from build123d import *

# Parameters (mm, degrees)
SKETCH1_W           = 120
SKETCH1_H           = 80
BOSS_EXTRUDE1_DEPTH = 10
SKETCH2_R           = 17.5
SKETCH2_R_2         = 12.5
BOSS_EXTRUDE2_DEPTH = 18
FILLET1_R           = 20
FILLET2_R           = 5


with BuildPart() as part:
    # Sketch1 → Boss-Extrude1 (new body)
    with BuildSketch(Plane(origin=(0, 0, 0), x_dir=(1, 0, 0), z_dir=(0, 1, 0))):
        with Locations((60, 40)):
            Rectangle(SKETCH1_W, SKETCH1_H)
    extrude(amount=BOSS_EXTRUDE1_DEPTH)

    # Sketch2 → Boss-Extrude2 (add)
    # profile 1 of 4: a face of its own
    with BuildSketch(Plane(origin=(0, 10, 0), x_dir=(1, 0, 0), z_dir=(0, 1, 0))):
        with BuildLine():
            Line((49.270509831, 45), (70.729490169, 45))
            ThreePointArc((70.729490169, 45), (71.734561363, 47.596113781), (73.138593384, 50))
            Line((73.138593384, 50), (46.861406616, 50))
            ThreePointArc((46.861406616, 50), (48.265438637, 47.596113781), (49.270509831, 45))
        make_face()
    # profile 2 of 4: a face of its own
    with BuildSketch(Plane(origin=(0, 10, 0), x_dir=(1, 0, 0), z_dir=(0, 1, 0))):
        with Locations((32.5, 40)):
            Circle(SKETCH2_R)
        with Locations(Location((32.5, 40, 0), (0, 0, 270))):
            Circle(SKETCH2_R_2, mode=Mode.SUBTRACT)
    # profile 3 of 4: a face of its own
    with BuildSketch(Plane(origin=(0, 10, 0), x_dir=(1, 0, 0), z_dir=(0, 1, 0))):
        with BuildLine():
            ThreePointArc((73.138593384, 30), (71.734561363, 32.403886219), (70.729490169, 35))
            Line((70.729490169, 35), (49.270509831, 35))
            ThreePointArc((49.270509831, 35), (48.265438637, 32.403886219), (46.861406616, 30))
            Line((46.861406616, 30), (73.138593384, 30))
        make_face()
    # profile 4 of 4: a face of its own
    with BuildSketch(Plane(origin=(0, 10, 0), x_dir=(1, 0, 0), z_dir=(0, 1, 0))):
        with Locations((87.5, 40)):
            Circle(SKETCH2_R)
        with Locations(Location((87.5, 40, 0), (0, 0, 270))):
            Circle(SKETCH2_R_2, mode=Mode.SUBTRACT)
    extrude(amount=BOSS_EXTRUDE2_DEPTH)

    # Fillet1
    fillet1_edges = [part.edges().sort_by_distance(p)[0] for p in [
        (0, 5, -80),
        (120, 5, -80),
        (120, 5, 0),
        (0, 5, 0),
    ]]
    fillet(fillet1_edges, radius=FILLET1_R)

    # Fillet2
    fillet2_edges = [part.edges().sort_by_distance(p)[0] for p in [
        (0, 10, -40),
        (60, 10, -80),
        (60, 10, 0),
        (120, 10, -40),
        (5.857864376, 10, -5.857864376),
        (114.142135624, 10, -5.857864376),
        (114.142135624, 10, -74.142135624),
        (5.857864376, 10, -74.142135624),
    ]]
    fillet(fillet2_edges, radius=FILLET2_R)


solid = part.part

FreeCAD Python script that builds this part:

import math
import FreeCAD as App
import Part
import Sketcher


def edges_at(feature, points):
    """Names of the edges that pass closest to the given points."""
    edges = feature.Shape.Edges
    near = lambda p: min(range(len(edges)), key=lambda i: edges[i].distToShape(Part.Vertex(*p))[0])
    return sorted({f"Edge{near(p) + 1}" for p in points})

doc = App.newDocument("Part")
body = doc.addObject("PartDesign::Body", "Body")

# Sketch on XZ plane
sketch1 = doc.addObject("Sketcher::SketchObject", "Sketch")
body.addObject(sketch1)
sketch1.AttachmentSupport = (doc.XZ_Plane, [""])
sketch1.MapMode = "FlatFace"
sketch1.addGeometry(Part.LineSegment(App.Vector(0, -80, 0), App.Vector(0, 0, 0)), False)
sketch1.addGeometry(Part.LineSegment(App.Vector(0, 0, 0), App.Vector(120, 0, 0)), False)
sketch1.addGeometry(Part.LineSegment(App.Vector(120, 0, 0), App.Vector(120, -80, 0)), False)
sketch1.addGeometry(Part.LineSegment(App.Vector(120, -80, 0), App.Vector(0, -80, 0)), False)
sketch1.addConstraint(Sketcher.Constraint("Coincident", 0, 2, 1, 1))
sketch1.addConstraint(Sketcher.Constraint("Coincident", 1, 2, 2, 1))
sketch1.addConstraint(Sketcher.Constraint("Coincident", 2, 2, 3, 1))
sketch1.addConstraint(Sketcher.Constraint("Coincident", 3, 2, 0, 1))
sketch1.addConstraint(Sketcher.Constraint("Vertical", 0))
sketch1.addConstraint(Sketcher.Constraint("Horizontal", 1))
sketch1.addConstraint(Sketcher.Constraint("Vertical", 2))
sketch1.addConstraint(Sketcher.Constraint("Horizontal", 3))
sketch1.addConstraint(Sketcher.Constraint("Coincident", 0, 2, -1, 1))
sketch1.addConstraint(Sketcher.Constraint("DistanceX", 1, 1, 1, 2, 120.0))
sketch1.addConstraint(Sketcher.Constraint("DistanceY", 0, 1, 0, 2, 80.0))
pad1 = doc.addObject("PartDesign::Pad", "Pad")
body.addObject(pad1)
pad1.Profile = sketch1
pad1.Length = 10
pad1.Reversed = True

# Sketch on XZ plane
sketch2 = doc.addObject("Sketcher::SketchObject", "Sketch001")
body.addObject(sketch2)
sketch2.AttachmentSupport = (doc.XZ_Plane, [""])
sketch2.MapMode = "FlatFace"
sketch2.AttachmentOffset = App.Placement(App.Vector(0, 0, -10), App.Rotation())
sketch2.addGeometry(Part.LineSegment(App.Vector(73.138593, -50, 0), App.Vector(46.861407, -50, 0)), False)
sketch2.addGeometry(Part.ArcOfCircle(Part.Circle(App.Vector(32.5, -40, 0), App.Vector(0, 0, 1), 17.5), math.radians(34.849905), math.radians(325.150095)), False)
sketch2.addGeometry(Part.LineSegment(App.Vector(46.861407, -30, 0), App.Vector(73.138593, -30, 0)), False)
sketch2.addGeometry(Part.ArcOfCircle(Part.Circle(App.Vector(87.5, -40, 0), App.Vector(0, 0, 1), 17.5), math.radians(-145.150095), math.radians(145.150095)), False)
sketch2.addGeometry(Part.LineSegment(App.Vector(49.27051, -45, 0), App.Vector(70.72949, -45, 0)), False)
sketch2.addGeometry(Part.ArcOfCircle(Part.Circle(App.Vector(87.5, -40, 0), App.Vector(0, 0, 1), 17.5), math.radians(163.39845), math.radians(196.60155)), False)
sketch2.addGeometry(Part.LineSegment(App.Vector(70.72949, -35, 0), App.Vector(49.27051, -35, 0)), False)
sketch2.addGeometry(Part.ArcOfCircle(Part.Circle(App.Vector(32.5, -40, 0), App.Vector(0, 0, 1), 17.5), math.radians(-16.60155), math.radians(16.60155)), False)
sketch2.addGeometry(Part.Circle(App.Vector(87.5, -40, 0), App.Vector(0, 0, 1), 12.5), False)
sketch2.addGeometry(Part.Circle(App.Vector(32.5, -40, 0), App.Vector(0, 0, 1), 12.5), False)
sketch2.addConstraint(Sketcher.Constraint("Coincident", 0, 2, 1, 2))
sketch2.addConstraint(Sketcher.Constraint("Coincident", 1, 1, 2, 1))
sketch2.addConstraint(Sketcher.Constraint("Coincident", 2, 2, 3, 2))
sketch2.addConstraint(Sketcher.Constraint("Coincident", 3, 1, 0, 1))
sketch2.addConstraint(Sketcher.Constraint("Coincident", 4, 2, 5, 2))
sketch2.addConstraint(Sketcher.Constraint("Coincident", 5, 1, 6, 1))
sketch2.addConstraint(Sketcher.Constraint("Coincident", 6, 2, 7, 2))
sketch2.addConstraint(Sketcher.Constraint("Coincident", 7, 1, 4, 1))
sketch2.addConstraint(Sketcher.Constraint("Horizontal", 0))
sketch2.addConstraint(Sketcher.Constraint("Horizontal", 2))
sketch2.addConstraint(Sketcher.Constraint("Horizontal", 4))
sketch2.addConstraint(Sketcher.Constraint("Horizontal", 6))
sketch2.addConstraint(Sketcher.Constraint("Coincident", 5, 3, 3, 3))
sketch2.addConstraint(Sketcher.Constraint("Coincident", 7, 3, 1, 3))
sketch2.addConstraint(Sketcher.Constraint("Coincident", 8, 3, 3, 3))
sketch2.addConstraint(Sketcher.Constraint("Coincident", 9, 3, 1, 3))
sketch2.addConstraint(Sketcher.Constraint("Equal", 1, 3))
sketch2.addConstraint(Sketcher.Constraint("Equal", 3, 5))
sketch2.addConstraint(Sketcher.Constraint("Equal", 5, 7))
sketch2.addConstraint(Sketcher.Constraint("Equal", 8, 9))
sketch2.addConstraint(Sketcher.Constraint("Horizontal", 1, 3, 3, 3))
sketch2.addConstraint(Sketcher.Constraint("Vertical", 0, 2, 1, 1))
sketch2.addConstraint(Sketcher.Constraint("Vertical", 4, 2, 5, 1))
sketch2.addConstraint(Sketcher.Constraint("Diameter", 8, 25.0))
sketch2.addConstraint(Sketcher.Constraint("Radius", 1, 17.5))
sketch2.addConstraint(Sketcher.Constraint("DistanceY", 1, 3, -1, 1, 40.0))
sketch2.addConstraint(Sketcher.Constraint("DistanceY", 0, 2, -1, 1, 50.0))
sketch2.addConstraint(Sketcher.Constraint("DistanceY", 4, 2, -1, 1, 45.0))
sketch2.addConstraint(Sketcher.Constraint("DistanceX", 1, 3, 3, 3, 55.0))
sketch2.addConstraint(Sketcher.Constraint("DistanceX", -1, 1, 1, 3, 32.5))
pad2 = doc.addObject("PartDesign::Pad", "Pad001")
body.addObject(pad2)
pad2.Profile = sketch2
pad2.Length = 18
pad2.Reversed = True
doc.recompute()

fillet = doc.addObject("PartDesign::Fillet", "Fillet")
body.addObject(fillet)
fillet.Base = (pad2, edges_at(pad2, [
    (0, 5, -80),
    (120, 5, -80),
    (120, 5, 0),
    (0, 5, 0),
]))
fillet.Radius = 20
doc.recompute()

fillet2 = doc.addObject("PartDesign::Fillet", "Fillet001")
body.addObject(fillet2)
fillet2.Base = (fillet, edges_at(fillet, [
    (0, 10, -40),
    (60, 10, -80),
    (60, 10, 0),
    (120, 10, -40),
    (5.858, 10, -5.858),
    (114.142, 10, -5.858),
    (114.142, 10, -74.142),
    (5.858, 10, -74.142),
]))
fillet2.Radius = 5

doc.recompute()
